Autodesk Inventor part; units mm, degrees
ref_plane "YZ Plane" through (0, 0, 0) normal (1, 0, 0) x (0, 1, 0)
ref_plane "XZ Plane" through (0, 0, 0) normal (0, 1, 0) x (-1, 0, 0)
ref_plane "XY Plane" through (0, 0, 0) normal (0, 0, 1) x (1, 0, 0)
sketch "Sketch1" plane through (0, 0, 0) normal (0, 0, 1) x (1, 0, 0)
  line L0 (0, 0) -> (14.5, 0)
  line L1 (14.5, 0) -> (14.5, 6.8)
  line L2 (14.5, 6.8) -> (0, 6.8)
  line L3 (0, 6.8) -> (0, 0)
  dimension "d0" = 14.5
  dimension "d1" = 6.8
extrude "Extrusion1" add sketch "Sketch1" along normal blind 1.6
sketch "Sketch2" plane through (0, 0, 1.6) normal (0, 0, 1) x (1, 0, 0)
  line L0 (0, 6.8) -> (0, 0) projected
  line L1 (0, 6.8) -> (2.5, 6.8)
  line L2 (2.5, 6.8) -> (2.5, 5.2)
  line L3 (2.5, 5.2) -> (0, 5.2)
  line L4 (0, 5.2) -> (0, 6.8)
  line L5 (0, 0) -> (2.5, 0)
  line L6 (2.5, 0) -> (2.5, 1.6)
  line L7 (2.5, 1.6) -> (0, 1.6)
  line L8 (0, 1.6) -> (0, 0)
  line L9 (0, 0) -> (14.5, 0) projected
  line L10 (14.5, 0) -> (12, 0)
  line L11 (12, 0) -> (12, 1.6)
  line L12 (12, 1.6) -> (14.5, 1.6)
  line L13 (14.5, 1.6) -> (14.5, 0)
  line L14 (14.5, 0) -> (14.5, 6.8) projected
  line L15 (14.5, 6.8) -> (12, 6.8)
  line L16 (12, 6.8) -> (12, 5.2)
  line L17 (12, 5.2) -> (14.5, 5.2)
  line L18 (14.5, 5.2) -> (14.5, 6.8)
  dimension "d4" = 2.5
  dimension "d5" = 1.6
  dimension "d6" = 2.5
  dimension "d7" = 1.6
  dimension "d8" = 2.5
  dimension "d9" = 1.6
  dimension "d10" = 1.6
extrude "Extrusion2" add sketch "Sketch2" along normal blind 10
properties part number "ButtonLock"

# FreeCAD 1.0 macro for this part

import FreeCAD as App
import Part
import Sketcher

V = App.Vector
Q = App.Units.Quantity


def add_polygon(sketch, points):
    """Adds a closed chain of lines whose ends are joined by coincident constraints."""
    first, n = sketch.GeometryCount, len(points)
    for a, b in zip(points, points[1:] + points[:1]):
        sketch.addGeometry(Part.LineSegment(App.Vector(*a, 0), App.Vector(*b, 0)), False)
    for i in range(n):
        sketch.addConstraint(Sketcher.Constraint("Coincident", first + i, 2, first + (i + 1) % n, 1))

doc = App.newDocument("Part")
body = doc.addObject("PartDesign::Body", "Body")

sketch1 = body.newObject("Sketcher::SketchObject", "Sketch")
sketch1.AttachmentSupport = (doc.getObject("XY_Plane"), [""])
sketch1.MapMode = "FlatFace"
add_polygon(sketch1, [(0, 6.8), (0, 0), (14.5, 0), (14.5, 6.8)])
sketch1.addConstraint(Sketcher.Constraint("Vertical", 0))
sketch1.addConstraint(Sketcher.Constraint("Horizontal", 1))
sketch1.addConstraint(Sketcher.Constraint("Vertical", 2))
sketch1.addConstraint(Sketcher.Constraint("Horizontal", 3))
sketch1.addConstraint(Sketcher.Constraint("Coincident", 0, 2, -1, 1))
sketch1.addConstraint(Sketcher.Constraint("DistanceX", 1, 1, 1, 2, Q("14.5 mm")))
sketch1.addConstraint(Sketcher.Constraint("DistanceY", 0, 2, 0, 1, Q("6.8 mm")))
pad1 = body.newObject("PartDesign::Pad", "Pad")
pad1.Profile = sketch1
pad1.Length = 1.6

sketch2 = body.newObject("Sketcher::SketchObject", "Sketch001")
sketch2.AttachmentSupport = (doc.getObject("XY_Plane"), [""])
sketch2.MapMode = "FlatFace"
sketch2.AttachmentOffset = App.Placement(V(0, 0, 1.6), App.Rotation())
add_polygon(sketch2, [(2.5, 6.8), (0, 6.8), (0, 5.2), (2.5, 5.2)])
add_polygon(sketch2, [(12, 5.2), (14.5, 5.2), (14.5, 6.8), (12, 6.8)])
add_polygon(sketch2, [(12, 1.6), (12, 0), (14.5, 0), (14.5, 1.6)])
add_polygon(sketch2, [(2.5, 1.6), (0, 1.6), (0, 0), (2.5, 0)])
sketch2.addConstraint(Sketcher.Constraint("Horizontal", 0))
sketch2.addConstraint(Sketcher.Constraint("Vertical", 1))
sketch2.addConstraint(Sketcher.Constraint("Horizontal", 2))
sketch2.addConstraint(Sketcher.Constraint("Vertical", 3))
sketch2.addConstraint(Sketcher.Constraint("Horizontal", 4))
sketch2.addConstraint(Sketcher.Constraint("Vertical", 5))
sketch2.addConstraint(Sketcher.Constraint("Horizontal", 6))
sketch2.addConstraint(Sketcher.Constraint("Vertical", 7))
sketch2.addConstraint(Sketcher.Constraint("Vertical", 8))
sketch2.addConstraint(Sketcher.Constraint("Horizontal", 9))
sketch2.addConstraint(Sketcher.Constraint("Vertical", 10))
sketch2.addConstraint(Sketcher.Constraint("Horizontal", 11))
sketch2.addConstraint(Sketcher.Constraint("Horizontal", 12))
sketch2.addConstraint(Sketcher.Constraint("Vertical", 13))
sketch2.addConstraint(Sketcher.Constraint("Horizontal", 14))
sketch2.addConstraint(Sketcher.Constraint("Vertical", 15))
sketch2.addConstraint(Sketcher.Constraint("Coincident", 13, 2, -1, 1))
sketch2.addConstraint(Sketcher.Constraint("PointOnObject", 0, 2, -2))
sketch2.addConstraint(Sketcher.Constraint("PointOnObject", 8, 2, -1))
sketch2.addConstraint(Sketcher.Constraint("Horizontal", 2, 2, 4, 2))
sketch2.addConstraint(Sketcher.Constraint("Horizontal", 3, 2, 5, 2))
sketch2.addConstraint(Sketcher.Constraint("Horizontal", 11, 2, 12, 2))
sketch2.addConstraint(Sketcher.Constraint("Vertical", 7, 2, 8, 2))
sketch2.addConstraint(Sketcher.Constraint("Vertical", 5, 2, 9, 2))
sketch2.addConstraint(Sketcher.Constraint("Vertical", 3, 2, 14, 2))
sketch2.addConstraint(Sketcher.Constraint("Equal", 2, 4))
sketch2.addConstraint(Sketcher.Constraint("Equal", 7, 8))
sketch2.addConstraint(Sketcher.Constraint("DistanceX", 0, 2, 0, 1, Q("2.5 mm")))
sketch2.addConstraint(Sketcher.Constraint("DistanceY", 1, 2, 1, 1, Q("1.6 mm")))
sketch2.addConstraint(Sketcher.Constraint("DistanceX", -1, 1, 6, 2, Q("12 mm")))
sketch2.addConstraint(Sketcher.Constraint("DistanceY", -1, 1, 0, 2, Q("6.8 mm")))
pad2 = body.newObject("PartDesign::Pad", "Pad001")
pad2.Profile = sketch2
pad2.Length = 10

doc.recompute()
